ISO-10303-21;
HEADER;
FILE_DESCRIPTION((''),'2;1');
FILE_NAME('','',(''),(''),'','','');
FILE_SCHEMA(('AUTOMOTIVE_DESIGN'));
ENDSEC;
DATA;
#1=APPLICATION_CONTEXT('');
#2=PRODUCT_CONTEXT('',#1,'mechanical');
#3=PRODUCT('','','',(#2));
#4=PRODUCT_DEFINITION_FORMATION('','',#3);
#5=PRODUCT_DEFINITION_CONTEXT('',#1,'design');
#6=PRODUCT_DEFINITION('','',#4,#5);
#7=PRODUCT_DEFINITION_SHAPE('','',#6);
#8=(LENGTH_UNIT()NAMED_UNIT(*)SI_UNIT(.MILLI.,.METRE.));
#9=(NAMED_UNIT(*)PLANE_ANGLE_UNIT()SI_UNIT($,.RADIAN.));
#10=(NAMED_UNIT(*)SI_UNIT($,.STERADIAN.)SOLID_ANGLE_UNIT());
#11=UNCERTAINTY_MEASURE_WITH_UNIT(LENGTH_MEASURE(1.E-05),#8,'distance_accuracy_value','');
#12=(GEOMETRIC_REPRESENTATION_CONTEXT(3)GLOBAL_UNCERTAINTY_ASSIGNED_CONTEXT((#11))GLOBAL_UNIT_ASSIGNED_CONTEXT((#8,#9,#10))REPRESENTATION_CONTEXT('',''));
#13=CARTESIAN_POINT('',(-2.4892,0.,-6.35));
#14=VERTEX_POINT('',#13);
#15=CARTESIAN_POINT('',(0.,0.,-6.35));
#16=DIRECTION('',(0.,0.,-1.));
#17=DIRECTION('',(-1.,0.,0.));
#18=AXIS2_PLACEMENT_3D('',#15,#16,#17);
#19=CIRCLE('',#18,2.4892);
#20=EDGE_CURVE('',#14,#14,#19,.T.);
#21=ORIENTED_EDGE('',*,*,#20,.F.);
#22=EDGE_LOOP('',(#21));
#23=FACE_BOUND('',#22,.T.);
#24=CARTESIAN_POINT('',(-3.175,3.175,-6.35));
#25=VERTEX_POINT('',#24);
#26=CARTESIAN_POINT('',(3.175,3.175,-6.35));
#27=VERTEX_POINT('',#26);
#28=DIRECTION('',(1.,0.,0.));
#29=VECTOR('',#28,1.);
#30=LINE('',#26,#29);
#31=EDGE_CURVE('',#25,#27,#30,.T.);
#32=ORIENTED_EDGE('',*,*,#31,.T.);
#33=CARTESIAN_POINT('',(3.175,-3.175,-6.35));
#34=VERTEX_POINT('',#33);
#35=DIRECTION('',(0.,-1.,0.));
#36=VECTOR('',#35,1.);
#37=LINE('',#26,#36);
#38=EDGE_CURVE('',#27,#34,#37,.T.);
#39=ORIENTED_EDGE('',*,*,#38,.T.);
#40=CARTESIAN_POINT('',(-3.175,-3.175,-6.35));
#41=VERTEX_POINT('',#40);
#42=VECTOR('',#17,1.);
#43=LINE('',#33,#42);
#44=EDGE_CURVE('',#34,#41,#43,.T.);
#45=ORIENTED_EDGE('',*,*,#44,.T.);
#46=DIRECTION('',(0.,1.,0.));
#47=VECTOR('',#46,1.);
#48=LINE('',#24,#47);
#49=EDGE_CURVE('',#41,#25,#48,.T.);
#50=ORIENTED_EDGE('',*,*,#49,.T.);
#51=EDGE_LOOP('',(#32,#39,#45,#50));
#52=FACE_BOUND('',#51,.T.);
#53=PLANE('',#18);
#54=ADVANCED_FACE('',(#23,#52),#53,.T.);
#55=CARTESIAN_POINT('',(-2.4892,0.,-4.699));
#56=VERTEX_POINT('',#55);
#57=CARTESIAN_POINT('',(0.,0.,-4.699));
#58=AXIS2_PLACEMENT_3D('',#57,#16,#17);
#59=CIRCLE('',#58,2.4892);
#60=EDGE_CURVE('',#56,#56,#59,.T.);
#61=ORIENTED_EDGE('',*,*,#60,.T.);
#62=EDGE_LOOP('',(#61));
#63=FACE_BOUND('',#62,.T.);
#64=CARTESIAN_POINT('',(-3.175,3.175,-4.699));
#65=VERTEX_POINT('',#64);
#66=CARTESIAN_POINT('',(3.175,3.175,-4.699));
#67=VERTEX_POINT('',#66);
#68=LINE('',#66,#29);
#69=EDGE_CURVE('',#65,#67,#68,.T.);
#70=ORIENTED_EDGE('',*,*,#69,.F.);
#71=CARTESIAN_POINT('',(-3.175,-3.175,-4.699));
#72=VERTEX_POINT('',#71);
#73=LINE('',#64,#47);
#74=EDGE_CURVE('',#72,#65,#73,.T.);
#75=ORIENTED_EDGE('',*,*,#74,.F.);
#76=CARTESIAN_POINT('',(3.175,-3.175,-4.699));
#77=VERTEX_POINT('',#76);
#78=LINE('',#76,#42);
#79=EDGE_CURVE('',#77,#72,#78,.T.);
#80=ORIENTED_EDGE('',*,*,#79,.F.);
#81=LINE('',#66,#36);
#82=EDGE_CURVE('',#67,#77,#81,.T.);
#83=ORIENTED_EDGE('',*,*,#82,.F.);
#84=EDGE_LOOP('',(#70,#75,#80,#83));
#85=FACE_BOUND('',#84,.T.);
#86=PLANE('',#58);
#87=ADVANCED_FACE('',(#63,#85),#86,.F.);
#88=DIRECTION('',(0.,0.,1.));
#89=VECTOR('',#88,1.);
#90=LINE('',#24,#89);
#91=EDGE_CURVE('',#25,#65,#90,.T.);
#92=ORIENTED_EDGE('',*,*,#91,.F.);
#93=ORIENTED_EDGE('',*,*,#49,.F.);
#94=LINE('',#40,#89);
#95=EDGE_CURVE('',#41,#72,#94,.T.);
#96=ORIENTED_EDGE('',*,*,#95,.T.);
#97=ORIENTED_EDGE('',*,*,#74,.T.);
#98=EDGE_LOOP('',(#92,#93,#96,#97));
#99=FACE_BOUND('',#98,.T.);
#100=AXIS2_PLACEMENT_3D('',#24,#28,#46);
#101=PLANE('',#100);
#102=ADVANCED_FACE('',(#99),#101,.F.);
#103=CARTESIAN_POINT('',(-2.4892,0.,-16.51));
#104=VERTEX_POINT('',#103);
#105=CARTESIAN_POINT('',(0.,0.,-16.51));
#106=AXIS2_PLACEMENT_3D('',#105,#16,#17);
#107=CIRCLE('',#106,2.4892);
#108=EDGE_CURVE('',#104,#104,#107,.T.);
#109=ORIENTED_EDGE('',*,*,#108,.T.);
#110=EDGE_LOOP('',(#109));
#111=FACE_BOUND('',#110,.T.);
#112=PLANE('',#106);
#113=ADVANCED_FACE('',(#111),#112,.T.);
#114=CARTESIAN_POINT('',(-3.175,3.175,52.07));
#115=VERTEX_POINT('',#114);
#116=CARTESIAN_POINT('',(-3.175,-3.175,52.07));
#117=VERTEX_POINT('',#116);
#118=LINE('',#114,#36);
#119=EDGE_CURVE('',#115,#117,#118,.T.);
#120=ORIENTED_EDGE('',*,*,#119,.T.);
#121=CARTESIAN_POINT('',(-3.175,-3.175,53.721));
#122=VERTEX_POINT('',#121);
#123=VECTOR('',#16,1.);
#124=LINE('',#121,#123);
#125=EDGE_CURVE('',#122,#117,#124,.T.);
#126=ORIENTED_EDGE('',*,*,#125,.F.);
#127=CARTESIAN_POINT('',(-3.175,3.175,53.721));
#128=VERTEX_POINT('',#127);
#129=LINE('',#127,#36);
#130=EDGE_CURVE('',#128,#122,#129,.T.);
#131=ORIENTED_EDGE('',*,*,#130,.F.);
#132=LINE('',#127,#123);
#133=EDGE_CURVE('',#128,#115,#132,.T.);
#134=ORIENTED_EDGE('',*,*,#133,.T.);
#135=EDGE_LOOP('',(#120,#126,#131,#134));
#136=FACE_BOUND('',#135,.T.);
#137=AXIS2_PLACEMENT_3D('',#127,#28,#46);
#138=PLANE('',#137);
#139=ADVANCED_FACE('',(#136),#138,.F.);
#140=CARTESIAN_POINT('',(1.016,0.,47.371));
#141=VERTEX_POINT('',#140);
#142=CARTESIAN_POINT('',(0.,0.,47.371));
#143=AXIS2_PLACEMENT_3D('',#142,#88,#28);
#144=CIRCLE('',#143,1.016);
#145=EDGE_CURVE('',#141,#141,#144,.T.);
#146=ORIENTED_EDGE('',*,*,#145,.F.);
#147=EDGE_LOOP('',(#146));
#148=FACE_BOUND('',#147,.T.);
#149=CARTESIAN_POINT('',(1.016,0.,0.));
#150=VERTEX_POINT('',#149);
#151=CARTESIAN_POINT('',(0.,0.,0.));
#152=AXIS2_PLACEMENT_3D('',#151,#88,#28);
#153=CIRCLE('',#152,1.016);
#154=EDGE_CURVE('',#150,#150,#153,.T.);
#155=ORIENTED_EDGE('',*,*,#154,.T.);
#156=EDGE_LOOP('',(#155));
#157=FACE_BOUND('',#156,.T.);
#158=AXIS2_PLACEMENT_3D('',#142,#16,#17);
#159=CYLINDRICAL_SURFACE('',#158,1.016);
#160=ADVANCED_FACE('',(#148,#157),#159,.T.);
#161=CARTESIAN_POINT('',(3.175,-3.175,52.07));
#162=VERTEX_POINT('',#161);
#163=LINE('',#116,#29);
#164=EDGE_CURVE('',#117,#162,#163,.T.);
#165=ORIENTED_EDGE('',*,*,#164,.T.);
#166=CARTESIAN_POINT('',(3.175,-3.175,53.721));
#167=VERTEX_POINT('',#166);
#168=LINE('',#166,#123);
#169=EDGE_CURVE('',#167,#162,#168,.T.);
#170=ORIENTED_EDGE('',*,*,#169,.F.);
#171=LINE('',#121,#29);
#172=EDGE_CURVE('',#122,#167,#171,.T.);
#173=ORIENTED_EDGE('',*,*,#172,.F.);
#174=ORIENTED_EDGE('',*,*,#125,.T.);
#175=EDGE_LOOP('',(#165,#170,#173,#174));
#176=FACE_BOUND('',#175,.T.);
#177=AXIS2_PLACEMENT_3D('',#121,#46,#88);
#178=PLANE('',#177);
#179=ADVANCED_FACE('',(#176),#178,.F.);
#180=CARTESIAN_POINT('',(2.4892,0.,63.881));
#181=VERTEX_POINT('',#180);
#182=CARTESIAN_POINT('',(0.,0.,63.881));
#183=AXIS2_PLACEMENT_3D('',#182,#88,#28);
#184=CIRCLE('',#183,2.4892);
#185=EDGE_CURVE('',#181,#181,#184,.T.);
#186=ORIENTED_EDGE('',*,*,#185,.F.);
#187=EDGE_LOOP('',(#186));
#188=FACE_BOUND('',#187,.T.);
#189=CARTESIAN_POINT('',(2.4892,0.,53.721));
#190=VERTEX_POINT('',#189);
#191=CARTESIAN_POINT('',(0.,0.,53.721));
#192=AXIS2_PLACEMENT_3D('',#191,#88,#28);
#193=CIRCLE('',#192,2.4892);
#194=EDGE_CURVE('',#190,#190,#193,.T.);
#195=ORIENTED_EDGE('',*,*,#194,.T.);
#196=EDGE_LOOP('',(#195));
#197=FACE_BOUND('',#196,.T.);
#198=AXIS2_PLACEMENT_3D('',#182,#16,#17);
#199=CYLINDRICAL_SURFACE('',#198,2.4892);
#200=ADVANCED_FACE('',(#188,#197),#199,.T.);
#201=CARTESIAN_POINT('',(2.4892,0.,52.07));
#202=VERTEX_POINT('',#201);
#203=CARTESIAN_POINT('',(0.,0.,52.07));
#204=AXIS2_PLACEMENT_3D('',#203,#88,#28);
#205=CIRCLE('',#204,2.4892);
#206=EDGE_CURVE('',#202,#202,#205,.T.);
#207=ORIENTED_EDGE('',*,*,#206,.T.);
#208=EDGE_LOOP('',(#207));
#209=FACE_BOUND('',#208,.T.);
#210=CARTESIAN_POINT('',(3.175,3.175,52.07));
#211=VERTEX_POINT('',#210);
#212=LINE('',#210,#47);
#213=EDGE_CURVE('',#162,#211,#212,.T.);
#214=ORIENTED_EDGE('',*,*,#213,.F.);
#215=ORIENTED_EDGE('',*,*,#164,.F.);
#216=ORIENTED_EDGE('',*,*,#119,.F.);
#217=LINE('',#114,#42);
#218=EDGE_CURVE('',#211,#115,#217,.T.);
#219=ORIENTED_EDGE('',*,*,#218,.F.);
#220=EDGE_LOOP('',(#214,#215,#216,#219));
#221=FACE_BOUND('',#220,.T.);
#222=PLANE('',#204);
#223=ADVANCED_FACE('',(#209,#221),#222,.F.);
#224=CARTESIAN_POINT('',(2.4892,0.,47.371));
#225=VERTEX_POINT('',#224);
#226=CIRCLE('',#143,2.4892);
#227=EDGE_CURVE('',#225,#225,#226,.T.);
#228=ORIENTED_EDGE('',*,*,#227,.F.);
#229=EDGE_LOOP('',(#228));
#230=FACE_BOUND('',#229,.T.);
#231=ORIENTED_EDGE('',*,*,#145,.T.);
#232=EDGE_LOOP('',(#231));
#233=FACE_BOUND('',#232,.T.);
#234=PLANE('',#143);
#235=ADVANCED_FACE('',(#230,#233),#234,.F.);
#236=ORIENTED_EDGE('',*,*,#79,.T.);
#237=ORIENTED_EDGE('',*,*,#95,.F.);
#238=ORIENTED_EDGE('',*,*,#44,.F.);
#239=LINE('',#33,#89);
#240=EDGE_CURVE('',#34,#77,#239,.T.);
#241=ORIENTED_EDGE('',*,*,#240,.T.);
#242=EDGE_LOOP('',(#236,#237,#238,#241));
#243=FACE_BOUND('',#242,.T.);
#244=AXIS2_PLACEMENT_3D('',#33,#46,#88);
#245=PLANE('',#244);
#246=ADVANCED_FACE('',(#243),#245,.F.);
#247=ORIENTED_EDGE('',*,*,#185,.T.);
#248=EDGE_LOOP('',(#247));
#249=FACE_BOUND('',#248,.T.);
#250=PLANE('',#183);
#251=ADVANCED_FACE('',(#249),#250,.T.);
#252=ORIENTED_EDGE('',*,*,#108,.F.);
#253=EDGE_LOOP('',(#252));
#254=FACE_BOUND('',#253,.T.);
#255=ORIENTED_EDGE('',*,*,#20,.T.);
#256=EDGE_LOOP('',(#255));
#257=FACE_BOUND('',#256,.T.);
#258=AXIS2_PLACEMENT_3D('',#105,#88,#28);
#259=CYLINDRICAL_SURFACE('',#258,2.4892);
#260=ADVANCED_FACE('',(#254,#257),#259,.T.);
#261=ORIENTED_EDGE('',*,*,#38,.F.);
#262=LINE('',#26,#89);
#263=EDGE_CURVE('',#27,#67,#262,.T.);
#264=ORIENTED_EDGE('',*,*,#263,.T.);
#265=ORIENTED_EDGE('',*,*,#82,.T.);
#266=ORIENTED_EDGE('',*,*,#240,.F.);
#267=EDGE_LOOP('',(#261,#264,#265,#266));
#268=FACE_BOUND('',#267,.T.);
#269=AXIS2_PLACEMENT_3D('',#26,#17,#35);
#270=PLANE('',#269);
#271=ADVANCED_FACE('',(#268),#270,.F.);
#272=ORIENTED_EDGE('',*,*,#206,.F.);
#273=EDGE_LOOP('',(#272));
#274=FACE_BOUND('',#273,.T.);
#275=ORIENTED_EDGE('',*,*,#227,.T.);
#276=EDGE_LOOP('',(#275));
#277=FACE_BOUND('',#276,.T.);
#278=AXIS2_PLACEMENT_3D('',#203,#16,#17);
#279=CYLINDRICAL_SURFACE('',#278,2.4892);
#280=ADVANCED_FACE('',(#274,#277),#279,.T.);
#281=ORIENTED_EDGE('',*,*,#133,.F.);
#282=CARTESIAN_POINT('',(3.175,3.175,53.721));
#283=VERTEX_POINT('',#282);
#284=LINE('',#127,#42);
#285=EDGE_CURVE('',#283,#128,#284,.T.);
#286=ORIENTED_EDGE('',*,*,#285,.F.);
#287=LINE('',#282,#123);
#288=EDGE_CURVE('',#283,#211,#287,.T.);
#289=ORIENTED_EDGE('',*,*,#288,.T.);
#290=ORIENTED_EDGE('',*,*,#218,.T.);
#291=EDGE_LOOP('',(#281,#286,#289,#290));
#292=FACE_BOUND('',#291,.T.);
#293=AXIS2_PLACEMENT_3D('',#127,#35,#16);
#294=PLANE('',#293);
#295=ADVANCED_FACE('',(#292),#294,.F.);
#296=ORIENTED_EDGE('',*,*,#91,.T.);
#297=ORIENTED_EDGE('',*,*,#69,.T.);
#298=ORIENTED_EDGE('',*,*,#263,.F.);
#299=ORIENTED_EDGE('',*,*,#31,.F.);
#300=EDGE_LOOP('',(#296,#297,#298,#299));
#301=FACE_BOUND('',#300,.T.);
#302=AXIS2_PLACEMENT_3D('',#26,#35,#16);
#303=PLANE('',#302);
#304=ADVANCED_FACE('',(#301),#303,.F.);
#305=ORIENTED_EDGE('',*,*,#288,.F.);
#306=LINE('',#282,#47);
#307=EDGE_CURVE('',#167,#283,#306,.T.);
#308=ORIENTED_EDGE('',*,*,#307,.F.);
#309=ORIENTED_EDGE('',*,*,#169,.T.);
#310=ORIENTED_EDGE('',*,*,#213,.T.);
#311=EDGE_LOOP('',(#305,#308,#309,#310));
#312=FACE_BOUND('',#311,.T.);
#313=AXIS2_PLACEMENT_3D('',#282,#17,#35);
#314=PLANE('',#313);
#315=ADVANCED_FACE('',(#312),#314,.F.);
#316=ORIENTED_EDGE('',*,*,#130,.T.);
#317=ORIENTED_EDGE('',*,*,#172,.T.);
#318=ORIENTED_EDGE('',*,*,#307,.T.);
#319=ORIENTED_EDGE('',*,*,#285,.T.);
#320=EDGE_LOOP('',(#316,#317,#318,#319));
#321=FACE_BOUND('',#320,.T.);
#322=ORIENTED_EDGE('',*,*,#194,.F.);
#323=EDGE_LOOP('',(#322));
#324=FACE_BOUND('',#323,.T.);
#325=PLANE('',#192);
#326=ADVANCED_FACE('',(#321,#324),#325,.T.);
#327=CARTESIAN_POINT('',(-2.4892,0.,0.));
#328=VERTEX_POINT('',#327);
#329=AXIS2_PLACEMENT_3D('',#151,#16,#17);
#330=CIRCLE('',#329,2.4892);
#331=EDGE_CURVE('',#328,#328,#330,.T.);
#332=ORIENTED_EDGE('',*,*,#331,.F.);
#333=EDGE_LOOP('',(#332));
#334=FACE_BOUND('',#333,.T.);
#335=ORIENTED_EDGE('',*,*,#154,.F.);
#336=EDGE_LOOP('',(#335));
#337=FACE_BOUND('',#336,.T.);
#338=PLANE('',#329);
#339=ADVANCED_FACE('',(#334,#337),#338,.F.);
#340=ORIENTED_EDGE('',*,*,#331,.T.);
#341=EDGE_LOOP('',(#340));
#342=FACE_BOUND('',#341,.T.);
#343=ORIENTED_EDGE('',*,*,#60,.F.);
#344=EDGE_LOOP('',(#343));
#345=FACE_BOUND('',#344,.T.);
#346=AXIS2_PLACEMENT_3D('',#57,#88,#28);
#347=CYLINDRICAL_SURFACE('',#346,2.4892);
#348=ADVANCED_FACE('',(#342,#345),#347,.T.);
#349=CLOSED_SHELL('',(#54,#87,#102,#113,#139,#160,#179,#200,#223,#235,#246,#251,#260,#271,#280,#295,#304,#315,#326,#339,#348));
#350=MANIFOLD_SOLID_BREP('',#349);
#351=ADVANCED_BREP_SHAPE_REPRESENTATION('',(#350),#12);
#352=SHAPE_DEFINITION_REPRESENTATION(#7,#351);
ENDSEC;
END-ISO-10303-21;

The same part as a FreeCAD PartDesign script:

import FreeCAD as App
import Part
import Sketcher
from FreeCAD import Vector
Q = App.Units.Quantity


def add_polygon(sketch, points):
    """Adds a closed chain of lines whose ends are joined by coincident constraints."""
    first, n = sketch.GeometryCount, len(points)
    for a, b in zip(points, points[1:] + points[:1]):
        sketch.addGeometry(Part.LineSegment(App.Vector(*a, 0), App.Vector(*b, 0)), False)
    for i in range(n):
        sketch.addConstraint(Sketcher.Constraint("Coincident", first + i, 2, first + (i + 1) % n, 1))

doc = App.newDocument("Part")
body = doc.addObject("PartDesign::Body", "Body")

# Sketch on XY plane
sketch1 = body.newObject("Sketcher::SketchObject", "Sketch")
sketch1.AttachmentSupport = (doc.getObject("XY_Plane"), [""])
sketch1.MapMode = "FlatFace"
sketch1.addGeometry(Part.Circle(Vector(0, 0, 0), Vector(0, 0, 1), 1), False)
sketch1.addConstraint([
    Sketcher.Constraint("Coincident", 0, 3, -1, 1),
    Sketcher.Constraint("Diameter", 0, Q("0.08 in")),
])
pad1 = body.newObject("PartDesign::Pad", "Pad")
pad1.Profile = sketch1
pad1.Length = Q("1.865 in")

# Sketch on XY plane
sketch2 = body.newObject("Sketcher::SketchObject", "Sketch001")
sketch2.AttachmentSupport = (doc.getObject("XY_Plane"), [""])
sketch2.MapMode = "FlatFace"
sketch2.addGeometry(Part.Circle(Vector(0, 0, 0), Vector(0, 0, 1), 2.5), False)
sketch2.addConstraint([
    Sketcher.Constraint("Coincident", 0, 3, -1, 1),
    Sketcher.Constraint("Diameter", 0, Q("0.196 in")),
])
pad2 = body.newObject("PartDesign::Pad", "Pad001")
pad2.Profile = sketch2
pad2.Length = Q("0.185 in")
pad2.Reversed = True

# Sketch on XY plane
sketch3 = body.newObject("Sketcher::SketchObject", "Sketch002")
sketch3.AttachmentSupport = (doc.getObject("XY_Plane"), [""])
sketch3.MapMode = "FlatFace"
sketch3.AttachmentOffset = App.Placement(Vector(0, 0, -0.185 * 25.4), App.Rotation())
add_polygon(sketch3, [(3, 3), (3, -3), (-3, -3), (-3, 3)])  # lines 0-3
sketch3.addConstraint([
    Sketcher.Constraint("Vertical", 0),
    Sketcher.Constraint("Horizontal", 1),
    Sketcher.Constraint("Vertical", 2),
    Sketcher.Constraint("Horizontal", 3),
    Sketcher.Constraint("Symmetric", 0, 2, 2, 2, -1, 1),
    Sketcher.Constraint("Equal", 3, 0),
    Sketcher.Constraint("DistanceX", 1, 2, 1, 1, Q("0.25 in")),
])
pad3 = body.newObject("PartDesign::Pad", "Pad002")
pad3.Profile = sketch3
pad3.Length = Q("0.065 in")
pad3.Reversed = True

# Sketch on XY plane
sketch4 = body.newObject("Sketcher::SketchObject", "Sketch003")
sketch4.AttachmentSupport = (doc.getObject("XY_Plane"), [""])
sketch4.MapMode = "FlatFace"
sketch4.AttachmentOffset = App.Placement(Vector(0, 0, -0.25 * 25.4), App.Rotation())
sketch4.addGeometry(Part.Circle(Vector(0, 0, 0), Vector(0, 0, 1), 2.5), False)
sketch4.addConstraint([
    Sketcher.Constraint("Coincident", 0, 3, -1, 1),
    Sketcher.Constraint("Diameter", 0, Q("0.196 in")),
])
pad4 = body.newObject("PartDesign::Pad", "Pad003")
pad4.Profile = sketch4
pad4.Length = Q("0.4 in")
pad4.Reversed = True

# Sketch on XY plane
sketch5 = body.newObject("Sketcher::SketchObject", "Sketch004")
sketch5.AttachmentSupport = (doc.getObject("XY_Plane"), [""])
sketch5.MapMode = "FlatFace"
sketch5.AttachmentOffset = App.Placement(Vector(0, 0, 2.05 * 25.4), App.Rotation())
sketch5.addGeometry(Part.Circle(Vector(0, 0, 0), Vector(0, 0, 1), 2.5), False)
sketch5.addConstraint([
    Sketcher.Constraint("Coincident", 0, 3, -1, 1),
    Sketcher.Constraint("Diameter", 0, Q("0.196 in")),
])
pad5 = body.newObject("PartDesign::Pad", "Pad004")
pad5.Profile = sketch5
pad5.Length = Q("0.185 in")
pad5.Reversed = True

# Sketch on XY plane
sketch6 = body.newObject("Sketcher::SketchObject", "Sketch005")
sketch6.AttachmentSupport = (doc.getObject("XY_Plane"), [""])
sketch6.MapMode = "FlatFace"
sketch6.AttachmentOffset = App.Placement(Vector(0, 0, 2.05 * 25.4), App.Rotation())
add_polygon(sketch6, [(-3, 3), (-3, -3), (3, -3), (3, 3)])  # lines 0-3
sketch6.addConstraint([
    Sketcher.Constraint("Vertical", 0),
    Sketcher.Constraint("Horizontal", 1),
    Sketcher.Constraint("Vertical", 2),
    Sketcher.Constraint("Horizontal", 3),
    Sketcher.Constraint("Symmetric", 0, 2, 2, 2, -1, 1),
    Sketcher.Constraint("Equal", 3, 0),
    Sketcher.Constraint("DistanceX", 1, 1, 1, 2, Q("0.25 in")),
])
pad6 = body.newObject("PartDesign::Pad", "Pad005")
pad6.Profile = sketch6
pad6.Length = Q("0.065 in")

# Sketch on XY plane
sketch7 = body.newObject("Sketcher::SketchObject", "Sketch006")
sketch7.AttachmentSupport = (doc.getObject("XY_Plane"), [""])
sketch7.MapMode = "FlatFace"
sketch7.AttachmentOffset = App.Placement(Vector(0, 0, 2.515 * 25.4), App.Rotation())
sketch7.addGeometry(Part.Circle(Vector(0, 0, 0), Vector(0, 0, 1), 2.5), False)
sketch7.addConstraint([
    Sketcher.Constraint("Coincident", 0, 3, -1, 1),
    Sketcher.Constraint("Diameter", 0, Q("0.196 in")),
])
pad7 = body.newObject("PartDesign::Pad", "Pad006")
pad7.Profile = sketch7
pad7.Length = Q("0.4 in")
pad7.Reversed = True

doc.recompute()
